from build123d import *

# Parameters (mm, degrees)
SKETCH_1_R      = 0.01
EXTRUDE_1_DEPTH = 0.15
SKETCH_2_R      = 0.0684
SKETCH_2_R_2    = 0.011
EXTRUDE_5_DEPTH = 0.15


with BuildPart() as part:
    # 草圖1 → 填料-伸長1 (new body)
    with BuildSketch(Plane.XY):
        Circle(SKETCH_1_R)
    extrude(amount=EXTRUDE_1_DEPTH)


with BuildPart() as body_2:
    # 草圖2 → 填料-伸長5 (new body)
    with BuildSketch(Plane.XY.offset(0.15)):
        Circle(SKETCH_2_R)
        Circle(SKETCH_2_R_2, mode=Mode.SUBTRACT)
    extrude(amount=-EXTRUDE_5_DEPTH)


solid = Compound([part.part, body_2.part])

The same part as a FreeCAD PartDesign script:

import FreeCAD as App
import Part
import Sketcher
from FreeCAD import Vector

doc = App.newDocument("Part")
body = doc.addObject("PartDesign::Body", "Body")

sketch1 = body.newObject("Sketcher::SketchObject", "Sketch")
sketch1.AttachmentSupport = (doc.getObject("XY_Plane"), [""])
sketch1.MapMode = "FlatFace"
sketch1.addGeometry(Part.Circle(Vector(0, 0, 0), Vector(0, 0, 1), 0.01), False)
sketch1.addConstraint(Sketcher.Constraint("Coincident", 0, 3, -1, 1))
sketch1.addConstraint(Sketcher.Constraint("Diameter", 0, 0.02))
pad1 = body.newObject("PartDesign::Pad", "Pad")
pad1.Profile = sketch1
pad1.Length = 0.15
body2 = doc.addObject("PartDesign::Body", "Body001")

sketch2 = body2.newObject("Sketcher::SketchObject", "Sketch001")
sketch2.AttachmentSupport = (doc.getObject("XY_Plane001"), [""])
sketch2.MapMode = "FlatFace"
sketch2.AttachmentOffset = App.Placement(Vector(0, 0, 0.15), App.Rotation())
sketch2.addGeometry(Part.Circle(Vector(0, 0, 0), Vector(0, 0, 1), 0.068), False)
sketch2.addGeometry(Part.Circle(Vector(0, 0, 0), Vector(0, 0, 1), 0.011), False)
sketch2.addConstraint(Sketcher.Constraint("Coincident", 0, 3, -1, 1))
sketch2.addConstraint(Sketcher.Constraint("Coincident", 1, 3, -1, 1))
sketch2.addConstraint(Sketcher.Constraint("Diameter", 1, 0.022))
sketch2.addConstraint(Sketcher.Constraint("Diameter", 0, 0.1368))
pad2 = body2.newObject("PartDesign::Pad", "Pad001")
pad2.Profile = sketch2
pad2.Length = 0.15
pad2.Reversed = True

doc.recompute()
